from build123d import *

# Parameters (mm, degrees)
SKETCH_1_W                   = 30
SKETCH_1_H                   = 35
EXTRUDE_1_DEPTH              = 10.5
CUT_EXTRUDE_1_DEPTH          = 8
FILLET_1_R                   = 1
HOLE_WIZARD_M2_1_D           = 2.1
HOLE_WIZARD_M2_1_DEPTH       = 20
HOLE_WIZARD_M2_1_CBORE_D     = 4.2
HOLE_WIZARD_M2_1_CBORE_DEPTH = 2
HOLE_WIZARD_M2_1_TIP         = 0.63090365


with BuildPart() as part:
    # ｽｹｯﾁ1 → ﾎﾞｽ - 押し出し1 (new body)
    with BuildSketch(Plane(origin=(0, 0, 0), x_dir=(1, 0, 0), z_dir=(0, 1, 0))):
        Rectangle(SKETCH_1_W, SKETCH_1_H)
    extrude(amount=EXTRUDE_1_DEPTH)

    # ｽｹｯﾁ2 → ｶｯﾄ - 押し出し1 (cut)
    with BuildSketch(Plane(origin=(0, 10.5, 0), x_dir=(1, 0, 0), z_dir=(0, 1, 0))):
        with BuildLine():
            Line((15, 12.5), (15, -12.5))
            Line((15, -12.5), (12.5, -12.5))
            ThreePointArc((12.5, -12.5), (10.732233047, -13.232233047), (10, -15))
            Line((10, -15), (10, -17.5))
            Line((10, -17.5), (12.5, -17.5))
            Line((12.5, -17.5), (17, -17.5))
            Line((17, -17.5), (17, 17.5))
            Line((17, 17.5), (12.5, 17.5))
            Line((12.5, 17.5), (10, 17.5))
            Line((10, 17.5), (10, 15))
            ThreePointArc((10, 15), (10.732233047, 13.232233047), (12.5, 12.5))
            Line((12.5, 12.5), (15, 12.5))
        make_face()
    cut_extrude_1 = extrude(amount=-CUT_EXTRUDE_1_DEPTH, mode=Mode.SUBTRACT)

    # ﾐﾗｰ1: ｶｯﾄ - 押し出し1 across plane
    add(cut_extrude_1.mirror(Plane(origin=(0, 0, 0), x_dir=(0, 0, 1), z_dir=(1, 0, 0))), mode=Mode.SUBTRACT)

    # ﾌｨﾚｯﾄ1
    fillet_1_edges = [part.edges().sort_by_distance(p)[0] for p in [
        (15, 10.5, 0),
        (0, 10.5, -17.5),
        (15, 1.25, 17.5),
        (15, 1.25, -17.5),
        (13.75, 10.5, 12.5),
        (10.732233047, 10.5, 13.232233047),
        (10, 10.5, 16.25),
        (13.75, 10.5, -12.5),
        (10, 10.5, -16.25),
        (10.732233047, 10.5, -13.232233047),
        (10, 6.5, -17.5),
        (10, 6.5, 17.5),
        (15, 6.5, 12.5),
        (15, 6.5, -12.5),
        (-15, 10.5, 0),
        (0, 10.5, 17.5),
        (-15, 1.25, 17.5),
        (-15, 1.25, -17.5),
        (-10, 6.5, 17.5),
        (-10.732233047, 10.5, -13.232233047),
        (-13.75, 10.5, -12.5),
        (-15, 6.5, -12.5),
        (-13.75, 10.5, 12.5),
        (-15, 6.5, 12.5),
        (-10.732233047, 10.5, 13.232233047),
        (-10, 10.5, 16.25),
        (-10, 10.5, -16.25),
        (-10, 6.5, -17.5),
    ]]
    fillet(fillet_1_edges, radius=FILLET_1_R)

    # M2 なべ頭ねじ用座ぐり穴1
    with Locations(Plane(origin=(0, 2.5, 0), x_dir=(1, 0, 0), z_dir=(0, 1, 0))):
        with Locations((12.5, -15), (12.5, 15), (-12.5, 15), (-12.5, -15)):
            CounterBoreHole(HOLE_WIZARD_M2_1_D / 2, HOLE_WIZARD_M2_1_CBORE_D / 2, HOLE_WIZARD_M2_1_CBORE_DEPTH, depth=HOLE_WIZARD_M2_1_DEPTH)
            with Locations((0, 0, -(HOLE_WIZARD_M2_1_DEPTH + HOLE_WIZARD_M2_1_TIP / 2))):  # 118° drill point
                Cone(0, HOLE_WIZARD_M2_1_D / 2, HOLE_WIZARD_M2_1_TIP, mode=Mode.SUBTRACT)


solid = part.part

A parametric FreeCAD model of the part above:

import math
import FreeCAD as App
import Part
import Sketcher

V = App.Vector
Q = App.Units.Quantity


def edges_at(feature, points):
    """Names of the edges that pass closest to the given points."""
    edges = feature.Shape.Edges
    near = lambda p: min(range(len(edges)), key=lambda i: edges[i].distToShape(Part.Vertex(*p))[0])
    return sorted({f"Edge{near(p) + 1}" for p in points})


def add_polygon(sketch, points):
    """Adds a closed chain of lines whose ends are joined by coincident constraints."""
    first, n = sketch.GeometryCount, len(points)
    for a, b in zip(points, points[1:] + points[:1]):
        sketch.addGeometry(Part.LineSegment(App.Vector(*a, 0), App.Vector(*b, 0)), False)
    for i in range(n):
        sketch.addConstraint(Sketcher.Constraint("Coincident", first + i, 2, first + (i + 1) % n, 1))

doc = App.newDocument("Part")
body = doc.addObject("PartDesign::Body", "Body")

sketch1 = doc.addObject("Sketcher::SketchObject", "Sketch")
body.addObject(sketch1)
sketch1.AttachmentSupport = (doc.XZ_Plane, [""])
sketch1.MapMode = "FlatFace"
add_polygon(sketch1, [(-15, -18), (-15, 18), (15, 18), (15, -18)])
sketch1.addConstraint([
    Sketcher.Constraint("Vertical", 0),
    Sketcher.Constraint("Horizontal", 1),
    Sketcher.Constraint("Vertical", 2),
    Sketcher.Constraint("Horizontal", 3),
    Sketcher.Constraint("Symmetric", 0, 2, 2, 2, -1, 1),
    Sketcher.Constraint("DistanceX", 1, 1, 1, 2, Q("30 mm")),
    Sketcher.Constraint("DistanceY", 0, 1, 0, 2, Q("35 mm")),
])
pad1 = doc.addObject("PartDesign::Pad", "Pad")
body.addObject(pad1)
pad1.Profile = sketch1
pad1.Length = 10.5
pad1.Reversed = True

sketch2 = doc.addObject("Sketcher::SketchObject", "Sketch001")
body.addObject(sketch2)
sketch2.AttachmentSupport = (doc.XZ_Plane, [""])
sketch2.MapMode = "FlatFace"
sketch2.AttachmentOffset = App.Placement(V(0, 0, -10.5), App.Rotation())
sketch2.addGeometry([
    Part.LineSegment(V(15, -12.5, 0), V(15, 12.5, 0)),
    Part.LineSegment(V(15, 12.5, 0), V(12.5, 12.5, 0)),
    Part.ArcOfCircle(Part.Circle(V(12.5, 15, 0), V(0, 0, 1), 2.5), math.radians(180), math.radians(270)),
    Part.LineSegment(V(10, 15, 0), V(10, 17.5, 0)),
    Part.LineSegment(V(10, 17.5, 0), V(17, 17.5, 0)),
    Part.LineSegment(V(17, 17.5, 0), V(17, -17.5, 0)),
    Part.LineSegment(V(17, -17.5, 0), V(10, -17.5, 0)),
    Part.LineSegment(V(10, -17.5, 0), V(10, -15, 0)),
    Part.ArcOfCircle(Part.Circle(V(12.5, -15, 0), V(0, 0, 1), 2.5), math.radians(90), math.radians(180)),
    Part.LineSegment(V(12.5, -12.5, 0), V(15, -12.5, 0)),
], False)
sketch2.addConstraint([
    Sketcher.Constraint("Coincident", 0, 2, 1, 1),
    Sketcher.Constraint("Tangent", 1, 2, 2, 2),
    Sketcher.Constraint("Tangent", 2, 1, 3, 1),
    Sketcher.Constraint("Coincident", 3, 2, 4, 1),
    Sketcher.Constraint("Coincident", 4, 2, 5, 1),
    Sketcher.Constraint("Coincident", 5, 2, 6, 1),
    Sketcher.Constraint("Coincident", 6, 2, 7, 1),
    Sketcher.Constraint("Tangent", 7, 2, 8, 2),
    Sketcher.Constraint("Tangent", 8, 1, 9, 1),
    Sketcher.Constraint("Coincident", 9, 2, 0, 1),
    Sketcher.Constraint("Vertical", 0),
    Sketcher.Constraint("Horizontal", 1),
    Sketcher.Constraint("Vertical", 3),
    Sketcher.Constraint("Horizontal", 4),
    Sketcher.Constraint("Vertical", 5),
    Sketcher.Constraint("Horizontal", 6),
    Sketcher.Constraint("Vertical", 7),
    Sketcher.Constraint("Horizontal", 9),
    Sketcher.Constraint("Equal", 2, 8),
    Sketcher.Constraint("Symmetric", 2, 3, 8, 3, -1),
    Sketcher.Constraint("Equal", 9, 3),
    Sketcher.Constraint("Equal", 3, 7),
    Sketcher.Constraint("Radius", 2, Q("2.5 mm")),
    Sketcher.Constraint("DistanceX", 4, 1, 4, 2, Q("7 mm")),
    Sketcher.Constraint("DistanceY", 0, 1, 0, 2, Q("25 mm")),
    Sketcher.Constraint("DistanceY", 5, 2, 5, 1, Q("35 mm")),
    Sketcher.Constraint("DistanceX", -1, 1, 0, 2, Q("15 mm")),
])
pocket1 = doc.addObject("PartDesign::Pocket", "Pocket")
body.addObject(pocket1)
pocket1.Profile = sketch2
pocket1.Length = 8
pocket1.Reversed = True
doc.recompute()

mirrored = doc.addObject("PartDesign::Mirrored", "Mirrored")
body.addObject(mirrored)
mirrored.Originals = [pocket1]
mirrored.MirrorPlane = (doc.YZ_Plane, [""])
body.Tip = mirrored
doc.recompute()

fillet = doc.addObject("PartDesign::Fillet", "Fillet")
body.addObject(fillet)
fillet.Base = (mirrored, edges_at(mirrored, [
    (15, 10.5, 0),
    (0, 10.5, -17.5),
    (15, 1.25, 17.5),
    (15, 1.25, -17.5),
    (13.75, 10.5, 12.5),
    (10.732, 10.5, 13.232),
    (10, 10.5, 16.25),
    (13.75, 10.5, -12.5),
    (10, 10.5, -16.25),
    (10.732, 10.5, -13.232),
    (10, 6.5, -17.5),
    (10, 6.5, 17.5),
    (15, 6.5, 12.5),
    (15, 6.5, -12.5),
    (-15, 10.5, 0),
    (0, 10.5, 17.5),
    (-15, 1.25, 17.5),
    (-15, 1.25, -17.5),
    (-10, 6.5, 17.5),
    (-10.732, 10.5, -13.232),
    (-13.75, 10.5, -12.5),
    (-15, 6.5, -12.5),
    (-13.75, 10.5, 12.5),
    (-15, 6.5, 12.5),
    (-10.732, 10.5, 13.232),
    (-10, 10.5, 16.25),
    (-10, 10.5, -16.25),
    (-10, 6.5, -17.5),
]))
fillet.Radius = 1

sketch3 = doc.addObject("Sketcher::SketchObject", "Sketch002")
body.addObject(sketch3)
sketch3.AttachmentSupport = (doc.XZ_Plane, [""])
sketch3.MapMode = "FlatFace"
sketch3.AttachmentOffset = App.Placement(V(0, 0, -2.5), App.Rotation())
sketch3.addGeometry([
    Part.Circle(V(12.5, 15, 0), V(0, 0, 1), 1.1),
    Part.Circle(V(12.5, -15, 0), V(0, 0, 1), 1.1),
    Part.Circle(V(-12.5, -15, 0), V(0, 0, 1), 1.1),
    Part.Circle(V(-12.5, 15, 0), V(0, 0, 1), 1.1),
], False)
sketch3.addConstraint([
    Sketcher.Constraint("Equal", 0, 1),
    Sketcher.Constraint("Equal", 1, 2),
    Sketcher.Constraint("Equal", 2, 3),
    Sketcher.Constraint("Symmetric", 0, 3, 2, 3, -1, 1),
    Sketcher.Constraint("Symmetric", 1, 3, 3, 3, -1, 1),
    Sketcher.Constraint("Symmetric", 1, 3, 2, 3, -2),
    Sketcher.Constraint("Diameter", 0, Q("2.1 mm")),
    Sketcher.Constraint("DistanceY", -1, 1, 0, 3, Q("15 mm")),
    Sketcher.Constraint("DistanceX", 2, 3, 1, 3, Q("25 mm")),
])
doc.recompute()
hole = doc.addObject("PartDesign::Hole", "Hole")
body.addObject(hole)
hole.Profile = sketch3
hole.ThreadType = "None"
hole.Diameter = 2.1
hole.DepthType = "Dimension"
hole.Depth = 20
hole.DrillPoint = "Angled"
hole.DrillPointAngle = 118
hole.HoleCutType = "Counterbore"
hole.HoleCutDiameter = 4.2
hole.HoleCutDepth = 2
hole.Reversed = True

doc.recompute()
